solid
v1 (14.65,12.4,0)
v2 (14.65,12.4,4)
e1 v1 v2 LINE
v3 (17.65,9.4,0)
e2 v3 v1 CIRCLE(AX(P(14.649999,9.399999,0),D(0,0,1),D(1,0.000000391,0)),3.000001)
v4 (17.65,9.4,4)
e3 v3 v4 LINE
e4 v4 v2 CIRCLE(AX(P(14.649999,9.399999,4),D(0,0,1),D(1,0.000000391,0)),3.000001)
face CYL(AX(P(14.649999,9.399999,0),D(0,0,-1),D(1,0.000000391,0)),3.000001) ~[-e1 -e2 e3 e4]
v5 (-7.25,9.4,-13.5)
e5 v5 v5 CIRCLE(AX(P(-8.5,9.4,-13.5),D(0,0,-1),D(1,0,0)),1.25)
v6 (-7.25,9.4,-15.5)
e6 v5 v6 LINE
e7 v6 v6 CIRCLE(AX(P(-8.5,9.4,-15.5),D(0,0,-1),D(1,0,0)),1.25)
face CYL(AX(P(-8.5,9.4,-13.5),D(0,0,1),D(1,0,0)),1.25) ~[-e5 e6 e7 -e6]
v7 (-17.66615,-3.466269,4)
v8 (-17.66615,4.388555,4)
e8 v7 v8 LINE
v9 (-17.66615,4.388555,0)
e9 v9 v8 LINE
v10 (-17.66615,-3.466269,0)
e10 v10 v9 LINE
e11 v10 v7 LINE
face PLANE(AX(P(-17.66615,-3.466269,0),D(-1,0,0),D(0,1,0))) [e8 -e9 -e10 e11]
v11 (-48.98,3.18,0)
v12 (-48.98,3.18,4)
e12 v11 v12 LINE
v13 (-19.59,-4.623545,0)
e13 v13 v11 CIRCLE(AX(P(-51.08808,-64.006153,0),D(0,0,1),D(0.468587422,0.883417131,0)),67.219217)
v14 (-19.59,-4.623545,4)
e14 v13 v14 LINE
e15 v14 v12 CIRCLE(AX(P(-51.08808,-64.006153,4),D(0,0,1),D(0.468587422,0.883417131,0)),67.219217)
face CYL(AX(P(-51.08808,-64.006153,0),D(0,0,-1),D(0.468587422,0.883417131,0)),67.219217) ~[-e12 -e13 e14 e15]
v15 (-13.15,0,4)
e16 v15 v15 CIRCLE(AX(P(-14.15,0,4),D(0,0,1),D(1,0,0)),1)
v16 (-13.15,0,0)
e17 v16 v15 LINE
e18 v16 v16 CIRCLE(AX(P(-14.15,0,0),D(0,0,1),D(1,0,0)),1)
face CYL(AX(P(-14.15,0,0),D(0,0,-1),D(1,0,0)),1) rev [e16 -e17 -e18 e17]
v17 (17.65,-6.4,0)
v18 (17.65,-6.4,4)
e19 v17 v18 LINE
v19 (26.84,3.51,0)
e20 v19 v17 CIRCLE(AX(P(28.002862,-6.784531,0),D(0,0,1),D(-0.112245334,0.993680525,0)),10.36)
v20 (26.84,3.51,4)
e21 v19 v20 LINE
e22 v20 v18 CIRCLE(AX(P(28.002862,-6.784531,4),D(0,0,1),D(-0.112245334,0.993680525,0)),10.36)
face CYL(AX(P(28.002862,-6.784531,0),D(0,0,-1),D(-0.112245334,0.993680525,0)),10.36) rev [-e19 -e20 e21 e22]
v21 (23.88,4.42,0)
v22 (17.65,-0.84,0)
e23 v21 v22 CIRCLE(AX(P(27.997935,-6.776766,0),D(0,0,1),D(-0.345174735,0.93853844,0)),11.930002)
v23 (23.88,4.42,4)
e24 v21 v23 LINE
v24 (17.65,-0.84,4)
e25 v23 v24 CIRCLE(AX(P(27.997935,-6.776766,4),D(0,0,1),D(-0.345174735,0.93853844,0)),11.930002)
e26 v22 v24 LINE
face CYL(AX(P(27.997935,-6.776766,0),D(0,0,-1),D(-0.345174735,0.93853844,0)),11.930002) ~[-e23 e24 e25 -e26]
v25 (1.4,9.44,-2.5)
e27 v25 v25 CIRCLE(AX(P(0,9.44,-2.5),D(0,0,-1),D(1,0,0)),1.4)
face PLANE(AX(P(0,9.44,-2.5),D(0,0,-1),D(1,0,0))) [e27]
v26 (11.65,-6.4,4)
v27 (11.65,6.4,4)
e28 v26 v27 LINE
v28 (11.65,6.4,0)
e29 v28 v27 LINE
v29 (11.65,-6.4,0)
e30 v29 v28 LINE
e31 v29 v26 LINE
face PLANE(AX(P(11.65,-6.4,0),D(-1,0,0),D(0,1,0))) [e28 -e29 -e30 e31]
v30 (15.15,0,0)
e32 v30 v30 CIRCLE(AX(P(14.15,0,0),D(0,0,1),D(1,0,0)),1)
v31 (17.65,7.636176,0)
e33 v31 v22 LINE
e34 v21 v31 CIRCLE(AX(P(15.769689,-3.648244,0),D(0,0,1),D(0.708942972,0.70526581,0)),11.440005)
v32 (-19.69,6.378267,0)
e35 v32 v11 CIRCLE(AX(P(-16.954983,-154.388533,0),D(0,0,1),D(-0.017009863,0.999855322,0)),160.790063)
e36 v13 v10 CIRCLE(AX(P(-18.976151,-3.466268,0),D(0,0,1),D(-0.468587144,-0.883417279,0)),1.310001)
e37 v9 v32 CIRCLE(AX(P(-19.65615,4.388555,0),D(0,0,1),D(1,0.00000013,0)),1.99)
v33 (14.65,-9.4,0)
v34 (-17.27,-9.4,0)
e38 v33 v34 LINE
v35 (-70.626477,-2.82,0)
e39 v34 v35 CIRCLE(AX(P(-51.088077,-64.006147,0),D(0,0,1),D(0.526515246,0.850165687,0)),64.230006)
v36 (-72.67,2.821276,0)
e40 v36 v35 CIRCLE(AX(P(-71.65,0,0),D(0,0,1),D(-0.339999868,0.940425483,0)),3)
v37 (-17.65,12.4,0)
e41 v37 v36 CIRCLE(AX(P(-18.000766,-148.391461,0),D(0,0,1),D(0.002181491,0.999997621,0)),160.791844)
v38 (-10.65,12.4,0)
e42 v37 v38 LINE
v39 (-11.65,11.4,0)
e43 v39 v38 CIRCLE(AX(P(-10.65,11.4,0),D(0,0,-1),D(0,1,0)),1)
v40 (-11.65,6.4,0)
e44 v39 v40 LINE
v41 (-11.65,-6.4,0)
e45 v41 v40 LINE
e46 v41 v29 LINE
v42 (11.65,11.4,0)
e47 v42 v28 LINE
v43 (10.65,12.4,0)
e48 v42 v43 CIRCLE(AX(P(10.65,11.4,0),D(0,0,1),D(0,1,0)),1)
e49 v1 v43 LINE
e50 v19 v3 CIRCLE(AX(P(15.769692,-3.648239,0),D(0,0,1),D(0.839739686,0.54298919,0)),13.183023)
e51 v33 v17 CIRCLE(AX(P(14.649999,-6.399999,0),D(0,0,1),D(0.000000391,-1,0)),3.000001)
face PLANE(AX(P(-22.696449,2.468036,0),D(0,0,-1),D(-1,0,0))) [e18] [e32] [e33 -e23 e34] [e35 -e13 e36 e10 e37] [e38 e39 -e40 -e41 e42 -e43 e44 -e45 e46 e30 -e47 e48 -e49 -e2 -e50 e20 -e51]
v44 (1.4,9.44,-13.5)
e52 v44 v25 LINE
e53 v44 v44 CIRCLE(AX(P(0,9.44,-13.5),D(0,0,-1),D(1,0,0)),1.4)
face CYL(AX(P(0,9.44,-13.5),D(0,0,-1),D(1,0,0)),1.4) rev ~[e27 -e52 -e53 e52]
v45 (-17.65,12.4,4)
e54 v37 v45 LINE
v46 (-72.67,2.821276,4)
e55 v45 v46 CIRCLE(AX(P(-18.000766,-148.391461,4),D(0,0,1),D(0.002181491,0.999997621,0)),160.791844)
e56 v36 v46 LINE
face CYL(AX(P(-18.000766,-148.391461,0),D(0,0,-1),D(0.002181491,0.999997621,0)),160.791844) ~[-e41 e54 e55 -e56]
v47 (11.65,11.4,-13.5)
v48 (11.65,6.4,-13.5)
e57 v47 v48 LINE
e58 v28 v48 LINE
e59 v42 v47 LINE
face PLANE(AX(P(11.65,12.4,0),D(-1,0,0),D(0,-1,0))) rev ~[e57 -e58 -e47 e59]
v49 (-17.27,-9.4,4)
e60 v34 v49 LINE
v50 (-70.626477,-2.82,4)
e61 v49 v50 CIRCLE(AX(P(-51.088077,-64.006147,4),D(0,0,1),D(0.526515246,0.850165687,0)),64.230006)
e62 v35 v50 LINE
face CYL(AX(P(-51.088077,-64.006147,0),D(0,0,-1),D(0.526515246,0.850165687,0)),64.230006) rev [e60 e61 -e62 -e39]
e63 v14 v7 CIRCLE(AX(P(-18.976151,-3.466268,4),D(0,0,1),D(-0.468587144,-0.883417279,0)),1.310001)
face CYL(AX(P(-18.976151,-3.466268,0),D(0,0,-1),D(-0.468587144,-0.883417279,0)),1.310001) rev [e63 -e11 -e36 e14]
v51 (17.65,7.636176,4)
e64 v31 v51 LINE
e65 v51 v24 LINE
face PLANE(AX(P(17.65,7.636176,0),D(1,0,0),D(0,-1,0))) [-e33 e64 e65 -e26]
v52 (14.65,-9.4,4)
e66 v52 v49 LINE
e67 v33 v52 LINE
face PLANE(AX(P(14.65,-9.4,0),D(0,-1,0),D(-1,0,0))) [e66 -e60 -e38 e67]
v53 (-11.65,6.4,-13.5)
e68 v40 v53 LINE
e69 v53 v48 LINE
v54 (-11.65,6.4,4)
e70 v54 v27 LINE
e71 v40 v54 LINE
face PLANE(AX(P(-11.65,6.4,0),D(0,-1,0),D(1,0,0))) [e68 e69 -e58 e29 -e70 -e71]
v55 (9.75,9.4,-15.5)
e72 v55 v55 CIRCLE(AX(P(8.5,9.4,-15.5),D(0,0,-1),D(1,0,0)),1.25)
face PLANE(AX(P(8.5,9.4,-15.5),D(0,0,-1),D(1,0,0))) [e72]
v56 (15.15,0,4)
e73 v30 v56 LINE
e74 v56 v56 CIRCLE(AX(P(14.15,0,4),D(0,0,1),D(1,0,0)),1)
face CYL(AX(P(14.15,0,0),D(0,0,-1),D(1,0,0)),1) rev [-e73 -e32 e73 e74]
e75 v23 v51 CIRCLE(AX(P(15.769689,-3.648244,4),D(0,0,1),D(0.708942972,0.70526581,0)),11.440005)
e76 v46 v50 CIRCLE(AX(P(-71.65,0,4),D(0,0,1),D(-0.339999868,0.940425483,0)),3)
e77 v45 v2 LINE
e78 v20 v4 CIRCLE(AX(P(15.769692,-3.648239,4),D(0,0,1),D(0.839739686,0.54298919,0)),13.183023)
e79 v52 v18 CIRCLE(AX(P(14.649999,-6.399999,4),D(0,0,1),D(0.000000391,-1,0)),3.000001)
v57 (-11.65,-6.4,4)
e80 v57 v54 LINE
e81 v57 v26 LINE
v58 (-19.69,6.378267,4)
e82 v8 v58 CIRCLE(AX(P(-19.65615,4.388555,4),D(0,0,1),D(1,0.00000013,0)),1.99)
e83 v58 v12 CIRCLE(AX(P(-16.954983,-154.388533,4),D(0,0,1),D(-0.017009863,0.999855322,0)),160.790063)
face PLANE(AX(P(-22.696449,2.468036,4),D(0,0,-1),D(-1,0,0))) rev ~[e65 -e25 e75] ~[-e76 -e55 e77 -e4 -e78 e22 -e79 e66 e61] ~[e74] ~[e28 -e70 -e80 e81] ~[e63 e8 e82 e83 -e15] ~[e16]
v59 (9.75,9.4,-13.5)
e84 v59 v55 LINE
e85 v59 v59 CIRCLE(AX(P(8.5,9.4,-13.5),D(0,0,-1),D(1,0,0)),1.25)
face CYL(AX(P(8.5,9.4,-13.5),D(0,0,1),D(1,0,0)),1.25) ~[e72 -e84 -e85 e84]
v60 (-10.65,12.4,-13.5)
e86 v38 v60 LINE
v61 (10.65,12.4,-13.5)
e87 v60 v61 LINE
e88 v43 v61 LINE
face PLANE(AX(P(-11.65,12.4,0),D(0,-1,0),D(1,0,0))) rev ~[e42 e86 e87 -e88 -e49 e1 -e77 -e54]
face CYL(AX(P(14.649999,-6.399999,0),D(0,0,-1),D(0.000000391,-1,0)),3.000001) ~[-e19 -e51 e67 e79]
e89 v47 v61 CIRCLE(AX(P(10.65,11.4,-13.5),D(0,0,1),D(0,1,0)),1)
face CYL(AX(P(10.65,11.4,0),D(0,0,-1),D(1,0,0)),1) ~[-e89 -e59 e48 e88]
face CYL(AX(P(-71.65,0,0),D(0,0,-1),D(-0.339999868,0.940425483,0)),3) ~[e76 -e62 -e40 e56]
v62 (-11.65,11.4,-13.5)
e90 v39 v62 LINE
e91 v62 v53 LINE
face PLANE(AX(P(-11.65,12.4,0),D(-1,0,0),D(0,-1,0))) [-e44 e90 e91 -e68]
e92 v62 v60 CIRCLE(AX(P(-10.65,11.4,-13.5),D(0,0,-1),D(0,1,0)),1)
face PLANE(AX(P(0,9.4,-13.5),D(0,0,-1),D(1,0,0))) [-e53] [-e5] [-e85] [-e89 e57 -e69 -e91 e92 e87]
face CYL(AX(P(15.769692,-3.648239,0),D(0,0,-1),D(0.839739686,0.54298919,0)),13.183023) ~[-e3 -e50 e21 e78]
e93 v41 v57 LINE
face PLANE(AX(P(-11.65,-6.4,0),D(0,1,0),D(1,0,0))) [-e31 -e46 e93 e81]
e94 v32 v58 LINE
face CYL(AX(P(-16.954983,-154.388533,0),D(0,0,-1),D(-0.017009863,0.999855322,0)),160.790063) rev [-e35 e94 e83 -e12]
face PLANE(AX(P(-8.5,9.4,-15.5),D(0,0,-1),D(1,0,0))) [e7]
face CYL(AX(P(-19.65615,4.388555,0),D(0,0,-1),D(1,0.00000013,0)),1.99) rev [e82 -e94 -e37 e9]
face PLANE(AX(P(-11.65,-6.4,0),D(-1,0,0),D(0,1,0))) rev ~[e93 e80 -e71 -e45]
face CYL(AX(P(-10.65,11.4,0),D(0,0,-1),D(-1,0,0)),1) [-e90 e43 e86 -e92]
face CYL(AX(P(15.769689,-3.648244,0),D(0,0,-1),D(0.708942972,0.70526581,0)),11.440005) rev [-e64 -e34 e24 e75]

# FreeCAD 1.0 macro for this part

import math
import FreeCAD as App
import Part
import Sketcher
from FreeCAD import Vector


def edges_at(feature, points):
    """Names of the edges that pass closest to the given points."""
    edges = feature.Shape.Edges
    near = lambda p: min(range(len(edges)), key=lambda i: edges[i].distToShape(Part.Vertex(*p))[0])
    return sorted({f"Edge{near(p) + 1}" for p in points})


def add_polygon(sketch, points):
    """Adds a closed chain of lines whose ends are joined by coincident constraints."""
    first, n = sketch.GeometryCount, len(points)
    for a, b in zip(points, points[1:] + points[:1]):
        sketch.addGeometry(Part.LineSegment(App.Vector(*a, 0), App.Vector(*b, 0)), False)
    for i in range(n):
        sketch.addConstraint(Sketcher.Constraint("Coincident", first + i, 2, first + (i + 1) % n, 1))

doc = App.newDocument("Part")
body = doc.addObject("PartDesign::Body", "Body")

sketch1 = body.newObject("Sketcher::SketchObject", "Sketch")
sketch1.AttachmentSupport = (doc.getObject("XY_Plane"), [""])
sketch1.MapMode = "FlatFace"
sketch1.addGeometry(Part.LineSegment(Vector(14.7, 12.4, 0), Vector(-17.6, 12.4, 0)), False)
sketch1.addGeometry(Part.ArcOfCircle(Part.Circle(Vector(-18, -148.4, 0), Vector(0, 0, 1), 160.8), math.radians(90), math.radians(110)), False)
sketch1.addGeometry(Part.ArcOfCircle(Part.Circle(Vector(-71.7, 0, 0), Vector(0, 0, 1), 3), math.radians(110), math.radians(290)), False)
sketch1.addGeometry(Part.ArcOfCircle(Part.Circle(Vector(-51.1, -64, 0), Vector(0, 0, 1), 64.2), math.radians(58), math.radians(108)), False)
sketch1.addGeometry(Part.LineSegment(Vector(-17.3, -9.4, 0), Vector(14.7, -9.4, 0)), False)
sketch1.addGeometry(Part.ArcOfCircle(Part.Circle(Vector(14.6, -6.4, 0), Vector(0, 0, 1), 3), math.radians(-90), math.radians(0)), False)
sketch1.addGeometry(Part.ArcOfCircle(Part.Circle(Vector(28, -6.8, 0), Vector(0, 0, 1), 10.4), math.radians(96), math.radians(178)), False)
sketch1.addGeometry(Part.ArcOfCircle(Part.Circle(Vector(15.8, -3.6, 0), Vector(0, 0, 1), 13.2), math.radians(33), math.radians(82)), False)
sketch1.addGeometry(Part.ArcOfCircle(Part.Circle(Vector(14.6, 9.4, 0), Vector(0, 0, 1), 3), math.radians(0), math.radians(90)), False)
sketch1.addGeometry(Part.Circle(Vector(14.2, 0, 0), Vector(0, 0, 1), 1), False)
add_polygon(sketch1, [(-11.7, -6.4), (-11.7, 6.4), (11.7, 6.4), (11.7, -6.4)])
sketch1.addGeometry(Part.Circle(Vector(-14.2, 0, 0), Vector(0, 0, 1), 1), False)
sketch1.addGeometry(Part.ArcOfCircle(Part.Circle(Vector(15.8, -3.6, 0), Vector(0, 0, 1), 11.4), math.radians(45), math.radians(81)), False)
sketch1.addGeometry(Part.ArcOfCircle(Part.Circle(Vector(28, -6.8, 0), Vector(0, 0, 1), 11.9), math.radians(110), math.radians(150)), False)
sketch1.addGeometry(Part.LineSegment(Vector(17.6, -0.8, 0), Vector(17.6, 7.6, 0)), False)
sketch1.addGeometry(Part.ArcOfCircle(Part.Circle(Vector(-19, -3.5, 0), Vector(0, 0, 1), 1.3), math.radians(-118), math.radians(0)), False)
sketch1.addGeometry(Part.ArcOfCircle(Part.Circle(Vector(-51.1, -64, 0), Vector(0, 0, 1), 67.2), math.radians(62), math.radians(88)), False)
sketch1.addGeometry(Part.ArcOfCircle(Part.Circle(Vector(-17, -154.4, 0), Vector(0, 0, 1), 160.8), math.radians(90.97), math.radians(101.49)), False)
sketch1.addGeometry(Part.ArcOfCircle(Part.Circle(Vector(-19.7, 4.4, 0), Vector(0, 0, 1), 2), math.radians(0), math.radians(91)), False)
sketch1.addGeometry(Part.LineSegment(Vector(-17.7, 4.4, 0), Vector(-17.7, -3.5, 0)), False)
sketch1.addConstraint(Sketcher.Constraint("Coincident", 0, 2, 1, 1))
sketch1.addConstraint(Sketcher.Constraint("Tangent", 1, 2, 2, 1))
sketch1.addConstraint(Sketcher.Constraint("Coincident", 2, 2, 3, 2))
sketch1.addConstraint(Sketcher.Constraint("Coincident", 3, 1, 4, 1))
sketch1.addConstraint(Sketcher.Constraint("Tangent", 4, 2, 5, 1))
sketch1.addConstraint(Sketcher.Constraint("Coincident", 5, 2, 6, 2))
sketch1.addConstraint(Sketcher.Constraint("Coincident", 6, 1, 7, 1))
sketch1.addConstraint(Sketcher.Constraint("Coincident", 7, 2, 8, 1))
sketch1.addConstraint(Sketcher.Constraint("Tangent", 8, 2, 0, 1))
sketch1.addConstraint(Sketcher.Constraint("Coincident", 15, 1, 16, 1))
sketch1.addConstraint(Sketcher.Constraint("Coincident", 16, 2, 17, 1))
sketch1.addConstraint(Sketcher.Constraint("Coincident", 17, 2, 15, 2))
sketch1.addConstraint(Sketcher.Constraint("Tangent", 18, 1, 19, 1))
sketch1.addConstraint(Sketcher.Constraint("Coincident", 19, 2, 20, 2))
sketch1.addConstraint(Sketcher.Constraint("Tangent", 20, 1, 21, 2))
sketch1.addConstraint(Sketcher.Constraint("Tangent", 21, 1, 22, 1))
sketch1.addConstraint(Sketcher.Constraint("Tangent", 22, 2, 18, 2))
sketch1.addConstraint(Sketcher.Constraint("Horizontal", 0))
sketch1.addConstraint(Sketcher.Constraint("Horizontal", 4))
sketch1.addConstraint(Sketcher.Constraint("Vertical", 10))
sketch1.addConstraint(Sketcher.Constraint("Horizontal", 11))
sketch1.addConstraint(Sketcher.Constraint("Vertical", 12))
sketch1.addConstraint(Sketcher.Constraint("Horizontal", 13))
sketch1.addConstraint(Sketcher.Constraint("Vertical", 17))
sketch1.addConstraint(Sketcher.Constraint("Vertical", 22))
sketch1.addConstraint(Sketcher.Constraint("Coincident", 15, 3, 7, 3))
sketch1.addConstraint(Sketcher.Constraint("Coincident", 19, 3, 3, 3))
sketch1.addConstraint(Sketcher.Constraint("Equal", 2, 5))
sketch1.addConstraint(Sketcher.Constraint("Equal", 5, 8))
sketch1.addConstraint(Sketcher.Constraint("Equal", 9, 14))
sketch1.addConstraint(Sketcher.Constraint("Symmetric", 9, 3, 14, 3, -1, 1))
sketch1.addConstraint(Sketcher.Constraint("Symmetric", 10, 2, 12, 2, -1, 1))
sketch1.addConstraint(Sketcher.Constraint("PointOnObject", 2, 3, -1))
sketch1.addConstraint(Sketcher.Constraint("PointOnObject", 9, 3, -1))
sketch1.addConstraint(Sketcher.Constraint("Horizontal", 8, 3, 7, 2))
sketch1.addConstraint(Sketcher.Constraint("Horizontal", 5, 2, 12, 2))
sketch1.addConstraint(Sketcher.Constraint("Vertical", 5, 3, 8, 3))
sketch1.addConstraint(Sketcher.Constraint("Vertical", 7, 2, 16, 2))
sketch1.addConstraint(Sketcher.Constraint("Diameter", 9, 2.0))
sketch1.addConstraint(Sketcher.Constraint("Radius", 2, 3.0))
sketch1.addConstraint(Sketcher.Constraint("Radius", 6, 10.36))
sketch1.addConstraint(Sketcher.Constraint("Radius", 18, 1.310001))
sketch1.addConstraint(Sketcher.Constraint("Radius", 21, 1.99))
sketch1.addConstraint(Sketcher.Constraint("DistanceX", 0, 2, 0, 1, 32.3))
sketch1.addConstraint(Sketcher.Constraint("DistanceX", 11, 1, 11, 2, 23.3))
sketch1.addConstraint(Sketcher.Constraint("DistanceY", 10, 1, 10, 2, 12.8))
sketch1.addConstraint(Sketcher.Constraint("DistanceY", 4, 2, 5, 2, 3.0))
sketch1.addConstraint(Sketcher.Constraint("DistanceX", 0, 2, 10, 2, 6.0))
sketch1.addConstraint(Sketcher.Constraint("DistanceY", 10, 2, 0, 2, 6.0))
sketch1.addConstraint(Sketcher.Constraint("DistanceY", 2, 2, 19, 2, 6.0))
sketch1.addConstraint(Sketcher.Constraint("DistanceX", 4, 1, 4, 2, 31.92))
sketch1.addConstraint(Sketcher.Constraint("DistanceX", 2, 3, 5, 3, 86.299999))
sketch1.addConstraint(Sketcher.Constraint("DistanceX", 9, 3, 5, 3, 0.499999))
sketch1.addConstraint(Sketcher.Constraint("DistanceY", 2, 2, -1, 1, 2.82))
sketch1.addConstraint(Sketcher.Constraint("DistanceX", -1, 1, 6, 1, 26.84))
sketch1.addConstraint(Sketcher.Constraint("DistanceY", -1, 1, 6, 1, 3.51))
sketch1.addConstraint(Sketcher.Constraint("DistanceX", -1, 1, 15, 1, 23.88))
sketch1.addConstraint(Sketcher.Constraint("DistanceY", -1, 1, 15, 1, 4.42))
sketch1.addConstraint(Sketcher.Constraint("DistanceY", 16, 2, -1, 1, 0.84))
sketch1.addConstraint(Sketcher.Constraint("DistanceX", 18, 1, -1, 1, 19.59))
sketch1.addConstraint(Sketcher.Constraint("DistanceX", 19, 2, -1, 1, 48.98))
sketch1.addConstraint(Sketcher.Constraint("Radius", 1, 160.791844))
sketch1.addConstraint(Sketcher.Constraint("Radius", 3, 64.230006))
sketch1.addConstraint(Sketcher.Constraint("Radius", 7, 13.183023))
sketch1.addConstraint(Sketcher.Constraint("Radius", 16, 11.930002))
sketch1.addConstraint(Sketcher.Constraint("Radius", 20, 160.790063))
sketch1.addConstraint(Sketcher.Constraint("DistanceY", 18, 1, 21, 3, 9.0121))
pad1 = body.newObject("PartDesign::Pad", "Pad")
pad1.Profile = sketch1
pad1.Length = 4

sketch2 = body.newObject("Sketcher::SketchObject", "Sketch001")
sketch2.AttachmentSupport = (doc.getObject("XY_Plane"), [""])
sketch2.MapMode = "FlatFace"
add_polygon(sketch2, [(-12, 6), (-12, 12), (12, 12), (12, 6)])
sketch2.addConstraint(Sketcher.Constraint("Vertical", 0))
sketch2.addConstraint(Sketcher.Constraint("Horizontal", 1))
sketch2.addConstraint(Sketcher.Constraint("Vertical", 2))
sketch2.addConstraint(Sketcher.Constraint("Horizontal", 3))
sketch2.addConstraint(Sketcher.Constraint("DistanceY", 0, 1, 0, 2, 6.0))
sketch2.addConstraint(Sketcher.Constraint("DistanceX", 1, 1, 1, 2, 23.3))
sketch2.addConstraint(Sketcher.Constraint("DistanceY", -1, 1, 0, 2, 12.4))
sketch2.addConstraint(Sketcher.Constraint("DistanceX", 0, 2, -1, 1, 11.65))
pad2 = body.newObject("PartDesign::Pad", "Pad001")
pad2.Profile = sketch2
pad2.Length = 13.5
pad2.Reversed = True

sketch3 = body.newObject("Sketcher::SketchObject", "Sketch002")
sketch3.AttachmentSupport = (doc.getObject("XY_Plane"), [""])
sketch3.MapMode = "FlatFace"
sketch3.AttachmentOffset = App.Placement(Vector(0, 0, -13.5), App.Rotation())
sketch3.addGeometry(Part.Circle(Vector(-8.5, 9.4, 0), Vector(0, 0, 1), 1.2), False)
sketch3.addGeometry(Part.Circle(Vector(8.5, 9.4, 0), Vector(0, 0, 1), 1.2), False)
sketch3.addConstraint(Sketcher.Constraint("Equal", 0, 1))
sketch3.addConstraint(Sketcher.Constraint("Symmetric", 0, 3, 1, 3, -2))
sketch3.addConstraint(Sketcher.Constraint("Diameter", 0, 2.5))
sketch3.addConstraint(Sketcher.Constraint("DistanceX", 0, 3, 1, 3, 17.0))
sketch3.addConstraint(Sketcher.Constraint("DistanceY", -1, 1, 0, 3, 9.4))
pad3 = body.newObject("PartDesign::Pad", "Pad002")
pad3.Profile = sketch3
pad3.Length = 2
pad3.Reversed = True

sketch4 = body.newObject("Sketcher::SketchObject", "Sketch003")
sketch4.AttachmentSupport = (doc.getObject("XY_Plane"), [""])
sketch4.MapMode = "FlatFace"
sketch4.AttachmentOffset = App.Placement(Vector(0, 0, -13.5), App.Rotation())
sketch4.addGeometry(Part.Circle(Vector(0, 9.4, 0), Vector(0, 0, 1), 1.4), False)
sketch4.addConstraint(Sketcher.Constraint("PointOnObject", 0, 3, -2))
sketch4.addConstraint(Sketcher.Constraint("Diameter", 0, 2.8))
sketch4.addConstraint(Sketcher.Constraint("DistanceY", -1, 1, 0, 3, 9.44))
pocket1 = body.newObject("PartDesign::Pocket", "Pocket")
pocket1.Profile = sketch4
pocket1.Length = 11
pocket1.Reversed = True
doc.recompute()

fillet = body.newObject("PartDesign::Fillet", "Fillet")
fillet.Base = (pocket1, edges_at(pocket1, [(-11.65, 12.4, -6.75)]))
fillet.Radius = 1
doc.recompute()

fillet2 = body.newObject("PartDesign::Fillet", "Fillet001")
fillet2.Base = (fillet, edges_at(fillet, [(11.65, 12.4, -6.75)]))
fillet2.Radius = 1

doc.recompute()
